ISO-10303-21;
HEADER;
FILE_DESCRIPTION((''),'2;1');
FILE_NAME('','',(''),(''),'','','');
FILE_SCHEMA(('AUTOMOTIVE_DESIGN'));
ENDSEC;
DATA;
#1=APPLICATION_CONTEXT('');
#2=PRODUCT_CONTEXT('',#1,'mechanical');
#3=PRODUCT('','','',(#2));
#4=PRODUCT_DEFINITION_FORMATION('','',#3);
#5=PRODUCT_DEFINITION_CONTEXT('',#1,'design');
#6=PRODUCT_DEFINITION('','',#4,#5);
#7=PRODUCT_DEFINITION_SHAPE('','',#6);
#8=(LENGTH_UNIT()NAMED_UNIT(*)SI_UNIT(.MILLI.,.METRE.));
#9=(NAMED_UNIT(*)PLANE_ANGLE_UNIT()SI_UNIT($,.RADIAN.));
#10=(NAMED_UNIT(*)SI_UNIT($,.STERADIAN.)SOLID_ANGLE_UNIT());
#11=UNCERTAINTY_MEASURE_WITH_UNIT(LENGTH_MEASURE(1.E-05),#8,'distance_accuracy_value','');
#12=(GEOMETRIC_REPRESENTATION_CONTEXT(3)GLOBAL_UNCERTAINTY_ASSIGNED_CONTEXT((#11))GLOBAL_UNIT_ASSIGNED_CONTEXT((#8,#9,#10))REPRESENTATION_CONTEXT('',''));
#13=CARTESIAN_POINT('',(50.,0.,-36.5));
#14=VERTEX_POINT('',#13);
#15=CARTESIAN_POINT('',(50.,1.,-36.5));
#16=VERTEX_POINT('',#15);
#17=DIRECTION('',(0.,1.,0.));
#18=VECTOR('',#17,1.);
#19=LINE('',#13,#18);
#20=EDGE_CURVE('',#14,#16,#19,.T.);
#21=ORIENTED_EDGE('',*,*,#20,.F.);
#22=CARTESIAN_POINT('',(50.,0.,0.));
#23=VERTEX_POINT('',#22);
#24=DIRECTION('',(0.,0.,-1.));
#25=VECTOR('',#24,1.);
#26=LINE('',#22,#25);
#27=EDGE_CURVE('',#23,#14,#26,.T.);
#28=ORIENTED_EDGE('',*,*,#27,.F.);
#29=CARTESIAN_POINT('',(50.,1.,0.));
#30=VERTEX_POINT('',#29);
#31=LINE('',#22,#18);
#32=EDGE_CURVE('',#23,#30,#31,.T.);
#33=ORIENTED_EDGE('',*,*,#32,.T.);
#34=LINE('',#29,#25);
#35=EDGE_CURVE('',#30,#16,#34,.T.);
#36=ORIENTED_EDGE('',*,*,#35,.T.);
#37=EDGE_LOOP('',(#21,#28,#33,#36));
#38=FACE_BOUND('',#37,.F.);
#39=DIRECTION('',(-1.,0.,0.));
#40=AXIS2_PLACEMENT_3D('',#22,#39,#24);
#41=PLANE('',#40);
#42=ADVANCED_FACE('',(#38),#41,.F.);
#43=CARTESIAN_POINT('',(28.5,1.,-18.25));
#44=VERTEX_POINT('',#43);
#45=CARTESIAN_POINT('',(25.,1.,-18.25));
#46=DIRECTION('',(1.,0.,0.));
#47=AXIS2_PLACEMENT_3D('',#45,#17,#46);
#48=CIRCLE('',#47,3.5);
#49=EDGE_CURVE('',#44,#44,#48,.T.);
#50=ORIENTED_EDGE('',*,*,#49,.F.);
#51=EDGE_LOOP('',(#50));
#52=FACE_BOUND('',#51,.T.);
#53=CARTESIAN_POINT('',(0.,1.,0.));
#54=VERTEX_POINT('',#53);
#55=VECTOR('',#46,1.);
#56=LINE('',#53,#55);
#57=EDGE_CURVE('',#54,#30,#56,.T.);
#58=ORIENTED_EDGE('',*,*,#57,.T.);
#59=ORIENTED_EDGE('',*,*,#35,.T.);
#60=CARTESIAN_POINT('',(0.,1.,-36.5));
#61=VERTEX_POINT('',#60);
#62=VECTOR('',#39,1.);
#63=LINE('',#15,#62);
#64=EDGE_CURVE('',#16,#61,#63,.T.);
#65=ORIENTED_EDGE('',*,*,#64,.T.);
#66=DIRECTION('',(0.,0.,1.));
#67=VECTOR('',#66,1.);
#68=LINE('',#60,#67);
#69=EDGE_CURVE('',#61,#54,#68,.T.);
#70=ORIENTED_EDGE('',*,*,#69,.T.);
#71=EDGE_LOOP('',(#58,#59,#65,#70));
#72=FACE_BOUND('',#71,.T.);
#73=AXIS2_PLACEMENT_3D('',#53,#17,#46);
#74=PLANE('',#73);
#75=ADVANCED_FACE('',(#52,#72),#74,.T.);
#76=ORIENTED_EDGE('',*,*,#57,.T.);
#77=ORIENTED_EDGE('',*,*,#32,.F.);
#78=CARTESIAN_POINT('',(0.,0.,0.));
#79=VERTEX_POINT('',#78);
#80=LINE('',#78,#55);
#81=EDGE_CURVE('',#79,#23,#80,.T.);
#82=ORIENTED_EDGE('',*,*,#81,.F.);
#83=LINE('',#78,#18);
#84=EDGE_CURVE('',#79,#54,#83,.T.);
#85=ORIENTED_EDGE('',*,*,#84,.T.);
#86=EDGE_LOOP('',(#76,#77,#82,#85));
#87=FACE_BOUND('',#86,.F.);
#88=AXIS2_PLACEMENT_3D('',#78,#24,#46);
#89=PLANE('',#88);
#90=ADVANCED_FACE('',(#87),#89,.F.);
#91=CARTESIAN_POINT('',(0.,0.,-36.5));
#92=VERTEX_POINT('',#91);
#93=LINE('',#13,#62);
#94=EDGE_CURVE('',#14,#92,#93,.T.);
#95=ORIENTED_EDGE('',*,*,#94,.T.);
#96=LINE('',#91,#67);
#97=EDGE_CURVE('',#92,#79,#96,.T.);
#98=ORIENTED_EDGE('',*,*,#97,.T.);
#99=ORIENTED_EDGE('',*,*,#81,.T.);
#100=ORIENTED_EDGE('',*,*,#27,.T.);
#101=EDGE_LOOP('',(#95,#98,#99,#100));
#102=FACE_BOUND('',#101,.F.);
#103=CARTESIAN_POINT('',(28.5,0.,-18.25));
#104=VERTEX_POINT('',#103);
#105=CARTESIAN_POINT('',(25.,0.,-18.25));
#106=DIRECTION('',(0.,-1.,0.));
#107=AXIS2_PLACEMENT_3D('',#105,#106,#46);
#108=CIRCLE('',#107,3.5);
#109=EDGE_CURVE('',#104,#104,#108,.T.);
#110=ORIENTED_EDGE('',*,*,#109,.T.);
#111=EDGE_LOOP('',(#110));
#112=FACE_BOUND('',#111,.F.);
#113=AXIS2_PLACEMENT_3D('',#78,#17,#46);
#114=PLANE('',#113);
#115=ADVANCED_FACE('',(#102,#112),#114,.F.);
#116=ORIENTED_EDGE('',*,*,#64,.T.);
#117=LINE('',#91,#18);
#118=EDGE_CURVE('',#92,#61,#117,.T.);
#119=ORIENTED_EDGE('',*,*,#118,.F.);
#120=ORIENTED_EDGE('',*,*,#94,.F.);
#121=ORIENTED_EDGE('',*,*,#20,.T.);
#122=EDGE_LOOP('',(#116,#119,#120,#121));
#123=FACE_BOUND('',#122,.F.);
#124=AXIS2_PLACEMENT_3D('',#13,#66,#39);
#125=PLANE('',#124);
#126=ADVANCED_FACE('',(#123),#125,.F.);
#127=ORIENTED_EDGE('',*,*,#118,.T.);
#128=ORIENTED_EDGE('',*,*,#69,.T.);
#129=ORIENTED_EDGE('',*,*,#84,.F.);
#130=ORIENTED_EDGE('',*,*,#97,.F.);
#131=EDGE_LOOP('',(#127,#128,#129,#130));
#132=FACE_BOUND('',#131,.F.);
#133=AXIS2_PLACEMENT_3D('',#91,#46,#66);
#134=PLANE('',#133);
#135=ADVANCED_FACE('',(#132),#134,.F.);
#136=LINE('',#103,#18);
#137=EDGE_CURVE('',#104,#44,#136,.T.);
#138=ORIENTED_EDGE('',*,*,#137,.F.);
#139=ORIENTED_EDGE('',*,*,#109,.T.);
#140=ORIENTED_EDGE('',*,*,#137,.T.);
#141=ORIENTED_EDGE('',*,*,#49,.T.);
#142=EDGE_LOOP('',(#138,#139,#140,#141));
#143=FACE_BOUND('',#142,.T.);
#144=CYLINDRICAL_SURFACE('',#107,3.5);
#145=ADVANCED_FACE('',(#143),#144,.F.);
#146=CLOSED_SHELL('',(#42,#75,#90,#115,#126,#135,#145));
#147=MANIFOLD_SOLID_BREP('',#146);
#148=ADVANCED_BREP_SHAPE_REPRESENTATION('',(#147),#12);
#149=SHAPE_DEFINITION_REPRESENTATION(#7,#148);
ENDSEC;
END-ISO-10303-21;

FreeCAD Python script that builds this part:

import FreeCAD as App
import Part
import Sketcher
Q = App.Units.Quantity


def add_polygon(sketch, points):
    """Adds a closed chain of lines whose ends are joined by coincident constraints."""
    first, n = sketch.GeometryCount, len(points)
    for a, b in zip(points, points[1:] + points[:1]):
        sketch.addGeometry(Part.LineSegment(App.Vector(*a, 0), App.Vector(*b, 0)), False)
    for i in range(n):
        sketch.addConstraint(Sketcher.Constraint("Coincident", first + i, 2, first + (i + 1) % n, 1))

doc = App.newDocument("Part")
params = doc.addObject("Spreadsheet::Sheet", "Params")
for row, (alias, value) in enumerate([
    ("sketch1_diameter", "7 mm"),
    ("sketch1_width", "50 mm"),
    ("sketch1_height", "36.5 mm"),
    ("pad1_length", "1 mm"),
], start=1):
    params.set(f"A{row}", alias)
    params.set(f"B{row}", "=" + value)
    params.setAlias(f"B{row}", alias)

body = doc.addObject("PartDesign::Body", "Body")

sketch1 = body.newObject("Sketcher::SketchObject", "Sketch")
sketch1.AttachmentSupport = (doc.getObject("XZ_Plane"), [""])
sketch1.MapMode = "FlatFace"
add_polygon(sketch1, [(0, 0), (50, 0), (50, -36.5), (0, -36.5)])
sketch1.addGeometry(Part.Circle(App.Vector(25, -18.2, 0), App.Vector(0, 0, 1), 3.5), False)
sketch1.addConstraint([
    Sketcher.Constraint("Horizontal", 0),
    Sketcher.Constraint("Vertical", 1),
    Sketcher.Constraint("Horizontal", 2),
    Sketcher.Constraint("Vertical", 3),
    Sketcher.Constraint("Coincident", 3, 2, -1, 1),
    Sketcher.Constraint("Diameter", 4, Q("7 mm")),
    Sketcher.Constraint("DistanceX", 0, 1, 0, 2, Q("50 mm")),
    Sketcher.Constraint("DistanceY", 1, 2, 1, 1, Q("36.5 mm")),
    Sketcher.Constraint("DistanceX", -1, 1, 4, 3, Q("25 mm")),
    Sketcher.Constraint("DistanceY", 4, 3, -1, 1, Q("18.25 mm")),
])
sketch1.setExpression("Constraints[9]", "Params.sketch1_diameter")
sketch1.setExpression("Constraints[10]", "Params.sketch1_width")
sketch1.setExpression("Constraints[11]", "Params.sketch1_height")
pad1 = body.newObject("PartDesign::Pad", "Pad")
pad1.Profile = sketch1
pad1.setExpression("Length", "Params.pad1_length")
pad1.Reversed = True

doc.recompute()
